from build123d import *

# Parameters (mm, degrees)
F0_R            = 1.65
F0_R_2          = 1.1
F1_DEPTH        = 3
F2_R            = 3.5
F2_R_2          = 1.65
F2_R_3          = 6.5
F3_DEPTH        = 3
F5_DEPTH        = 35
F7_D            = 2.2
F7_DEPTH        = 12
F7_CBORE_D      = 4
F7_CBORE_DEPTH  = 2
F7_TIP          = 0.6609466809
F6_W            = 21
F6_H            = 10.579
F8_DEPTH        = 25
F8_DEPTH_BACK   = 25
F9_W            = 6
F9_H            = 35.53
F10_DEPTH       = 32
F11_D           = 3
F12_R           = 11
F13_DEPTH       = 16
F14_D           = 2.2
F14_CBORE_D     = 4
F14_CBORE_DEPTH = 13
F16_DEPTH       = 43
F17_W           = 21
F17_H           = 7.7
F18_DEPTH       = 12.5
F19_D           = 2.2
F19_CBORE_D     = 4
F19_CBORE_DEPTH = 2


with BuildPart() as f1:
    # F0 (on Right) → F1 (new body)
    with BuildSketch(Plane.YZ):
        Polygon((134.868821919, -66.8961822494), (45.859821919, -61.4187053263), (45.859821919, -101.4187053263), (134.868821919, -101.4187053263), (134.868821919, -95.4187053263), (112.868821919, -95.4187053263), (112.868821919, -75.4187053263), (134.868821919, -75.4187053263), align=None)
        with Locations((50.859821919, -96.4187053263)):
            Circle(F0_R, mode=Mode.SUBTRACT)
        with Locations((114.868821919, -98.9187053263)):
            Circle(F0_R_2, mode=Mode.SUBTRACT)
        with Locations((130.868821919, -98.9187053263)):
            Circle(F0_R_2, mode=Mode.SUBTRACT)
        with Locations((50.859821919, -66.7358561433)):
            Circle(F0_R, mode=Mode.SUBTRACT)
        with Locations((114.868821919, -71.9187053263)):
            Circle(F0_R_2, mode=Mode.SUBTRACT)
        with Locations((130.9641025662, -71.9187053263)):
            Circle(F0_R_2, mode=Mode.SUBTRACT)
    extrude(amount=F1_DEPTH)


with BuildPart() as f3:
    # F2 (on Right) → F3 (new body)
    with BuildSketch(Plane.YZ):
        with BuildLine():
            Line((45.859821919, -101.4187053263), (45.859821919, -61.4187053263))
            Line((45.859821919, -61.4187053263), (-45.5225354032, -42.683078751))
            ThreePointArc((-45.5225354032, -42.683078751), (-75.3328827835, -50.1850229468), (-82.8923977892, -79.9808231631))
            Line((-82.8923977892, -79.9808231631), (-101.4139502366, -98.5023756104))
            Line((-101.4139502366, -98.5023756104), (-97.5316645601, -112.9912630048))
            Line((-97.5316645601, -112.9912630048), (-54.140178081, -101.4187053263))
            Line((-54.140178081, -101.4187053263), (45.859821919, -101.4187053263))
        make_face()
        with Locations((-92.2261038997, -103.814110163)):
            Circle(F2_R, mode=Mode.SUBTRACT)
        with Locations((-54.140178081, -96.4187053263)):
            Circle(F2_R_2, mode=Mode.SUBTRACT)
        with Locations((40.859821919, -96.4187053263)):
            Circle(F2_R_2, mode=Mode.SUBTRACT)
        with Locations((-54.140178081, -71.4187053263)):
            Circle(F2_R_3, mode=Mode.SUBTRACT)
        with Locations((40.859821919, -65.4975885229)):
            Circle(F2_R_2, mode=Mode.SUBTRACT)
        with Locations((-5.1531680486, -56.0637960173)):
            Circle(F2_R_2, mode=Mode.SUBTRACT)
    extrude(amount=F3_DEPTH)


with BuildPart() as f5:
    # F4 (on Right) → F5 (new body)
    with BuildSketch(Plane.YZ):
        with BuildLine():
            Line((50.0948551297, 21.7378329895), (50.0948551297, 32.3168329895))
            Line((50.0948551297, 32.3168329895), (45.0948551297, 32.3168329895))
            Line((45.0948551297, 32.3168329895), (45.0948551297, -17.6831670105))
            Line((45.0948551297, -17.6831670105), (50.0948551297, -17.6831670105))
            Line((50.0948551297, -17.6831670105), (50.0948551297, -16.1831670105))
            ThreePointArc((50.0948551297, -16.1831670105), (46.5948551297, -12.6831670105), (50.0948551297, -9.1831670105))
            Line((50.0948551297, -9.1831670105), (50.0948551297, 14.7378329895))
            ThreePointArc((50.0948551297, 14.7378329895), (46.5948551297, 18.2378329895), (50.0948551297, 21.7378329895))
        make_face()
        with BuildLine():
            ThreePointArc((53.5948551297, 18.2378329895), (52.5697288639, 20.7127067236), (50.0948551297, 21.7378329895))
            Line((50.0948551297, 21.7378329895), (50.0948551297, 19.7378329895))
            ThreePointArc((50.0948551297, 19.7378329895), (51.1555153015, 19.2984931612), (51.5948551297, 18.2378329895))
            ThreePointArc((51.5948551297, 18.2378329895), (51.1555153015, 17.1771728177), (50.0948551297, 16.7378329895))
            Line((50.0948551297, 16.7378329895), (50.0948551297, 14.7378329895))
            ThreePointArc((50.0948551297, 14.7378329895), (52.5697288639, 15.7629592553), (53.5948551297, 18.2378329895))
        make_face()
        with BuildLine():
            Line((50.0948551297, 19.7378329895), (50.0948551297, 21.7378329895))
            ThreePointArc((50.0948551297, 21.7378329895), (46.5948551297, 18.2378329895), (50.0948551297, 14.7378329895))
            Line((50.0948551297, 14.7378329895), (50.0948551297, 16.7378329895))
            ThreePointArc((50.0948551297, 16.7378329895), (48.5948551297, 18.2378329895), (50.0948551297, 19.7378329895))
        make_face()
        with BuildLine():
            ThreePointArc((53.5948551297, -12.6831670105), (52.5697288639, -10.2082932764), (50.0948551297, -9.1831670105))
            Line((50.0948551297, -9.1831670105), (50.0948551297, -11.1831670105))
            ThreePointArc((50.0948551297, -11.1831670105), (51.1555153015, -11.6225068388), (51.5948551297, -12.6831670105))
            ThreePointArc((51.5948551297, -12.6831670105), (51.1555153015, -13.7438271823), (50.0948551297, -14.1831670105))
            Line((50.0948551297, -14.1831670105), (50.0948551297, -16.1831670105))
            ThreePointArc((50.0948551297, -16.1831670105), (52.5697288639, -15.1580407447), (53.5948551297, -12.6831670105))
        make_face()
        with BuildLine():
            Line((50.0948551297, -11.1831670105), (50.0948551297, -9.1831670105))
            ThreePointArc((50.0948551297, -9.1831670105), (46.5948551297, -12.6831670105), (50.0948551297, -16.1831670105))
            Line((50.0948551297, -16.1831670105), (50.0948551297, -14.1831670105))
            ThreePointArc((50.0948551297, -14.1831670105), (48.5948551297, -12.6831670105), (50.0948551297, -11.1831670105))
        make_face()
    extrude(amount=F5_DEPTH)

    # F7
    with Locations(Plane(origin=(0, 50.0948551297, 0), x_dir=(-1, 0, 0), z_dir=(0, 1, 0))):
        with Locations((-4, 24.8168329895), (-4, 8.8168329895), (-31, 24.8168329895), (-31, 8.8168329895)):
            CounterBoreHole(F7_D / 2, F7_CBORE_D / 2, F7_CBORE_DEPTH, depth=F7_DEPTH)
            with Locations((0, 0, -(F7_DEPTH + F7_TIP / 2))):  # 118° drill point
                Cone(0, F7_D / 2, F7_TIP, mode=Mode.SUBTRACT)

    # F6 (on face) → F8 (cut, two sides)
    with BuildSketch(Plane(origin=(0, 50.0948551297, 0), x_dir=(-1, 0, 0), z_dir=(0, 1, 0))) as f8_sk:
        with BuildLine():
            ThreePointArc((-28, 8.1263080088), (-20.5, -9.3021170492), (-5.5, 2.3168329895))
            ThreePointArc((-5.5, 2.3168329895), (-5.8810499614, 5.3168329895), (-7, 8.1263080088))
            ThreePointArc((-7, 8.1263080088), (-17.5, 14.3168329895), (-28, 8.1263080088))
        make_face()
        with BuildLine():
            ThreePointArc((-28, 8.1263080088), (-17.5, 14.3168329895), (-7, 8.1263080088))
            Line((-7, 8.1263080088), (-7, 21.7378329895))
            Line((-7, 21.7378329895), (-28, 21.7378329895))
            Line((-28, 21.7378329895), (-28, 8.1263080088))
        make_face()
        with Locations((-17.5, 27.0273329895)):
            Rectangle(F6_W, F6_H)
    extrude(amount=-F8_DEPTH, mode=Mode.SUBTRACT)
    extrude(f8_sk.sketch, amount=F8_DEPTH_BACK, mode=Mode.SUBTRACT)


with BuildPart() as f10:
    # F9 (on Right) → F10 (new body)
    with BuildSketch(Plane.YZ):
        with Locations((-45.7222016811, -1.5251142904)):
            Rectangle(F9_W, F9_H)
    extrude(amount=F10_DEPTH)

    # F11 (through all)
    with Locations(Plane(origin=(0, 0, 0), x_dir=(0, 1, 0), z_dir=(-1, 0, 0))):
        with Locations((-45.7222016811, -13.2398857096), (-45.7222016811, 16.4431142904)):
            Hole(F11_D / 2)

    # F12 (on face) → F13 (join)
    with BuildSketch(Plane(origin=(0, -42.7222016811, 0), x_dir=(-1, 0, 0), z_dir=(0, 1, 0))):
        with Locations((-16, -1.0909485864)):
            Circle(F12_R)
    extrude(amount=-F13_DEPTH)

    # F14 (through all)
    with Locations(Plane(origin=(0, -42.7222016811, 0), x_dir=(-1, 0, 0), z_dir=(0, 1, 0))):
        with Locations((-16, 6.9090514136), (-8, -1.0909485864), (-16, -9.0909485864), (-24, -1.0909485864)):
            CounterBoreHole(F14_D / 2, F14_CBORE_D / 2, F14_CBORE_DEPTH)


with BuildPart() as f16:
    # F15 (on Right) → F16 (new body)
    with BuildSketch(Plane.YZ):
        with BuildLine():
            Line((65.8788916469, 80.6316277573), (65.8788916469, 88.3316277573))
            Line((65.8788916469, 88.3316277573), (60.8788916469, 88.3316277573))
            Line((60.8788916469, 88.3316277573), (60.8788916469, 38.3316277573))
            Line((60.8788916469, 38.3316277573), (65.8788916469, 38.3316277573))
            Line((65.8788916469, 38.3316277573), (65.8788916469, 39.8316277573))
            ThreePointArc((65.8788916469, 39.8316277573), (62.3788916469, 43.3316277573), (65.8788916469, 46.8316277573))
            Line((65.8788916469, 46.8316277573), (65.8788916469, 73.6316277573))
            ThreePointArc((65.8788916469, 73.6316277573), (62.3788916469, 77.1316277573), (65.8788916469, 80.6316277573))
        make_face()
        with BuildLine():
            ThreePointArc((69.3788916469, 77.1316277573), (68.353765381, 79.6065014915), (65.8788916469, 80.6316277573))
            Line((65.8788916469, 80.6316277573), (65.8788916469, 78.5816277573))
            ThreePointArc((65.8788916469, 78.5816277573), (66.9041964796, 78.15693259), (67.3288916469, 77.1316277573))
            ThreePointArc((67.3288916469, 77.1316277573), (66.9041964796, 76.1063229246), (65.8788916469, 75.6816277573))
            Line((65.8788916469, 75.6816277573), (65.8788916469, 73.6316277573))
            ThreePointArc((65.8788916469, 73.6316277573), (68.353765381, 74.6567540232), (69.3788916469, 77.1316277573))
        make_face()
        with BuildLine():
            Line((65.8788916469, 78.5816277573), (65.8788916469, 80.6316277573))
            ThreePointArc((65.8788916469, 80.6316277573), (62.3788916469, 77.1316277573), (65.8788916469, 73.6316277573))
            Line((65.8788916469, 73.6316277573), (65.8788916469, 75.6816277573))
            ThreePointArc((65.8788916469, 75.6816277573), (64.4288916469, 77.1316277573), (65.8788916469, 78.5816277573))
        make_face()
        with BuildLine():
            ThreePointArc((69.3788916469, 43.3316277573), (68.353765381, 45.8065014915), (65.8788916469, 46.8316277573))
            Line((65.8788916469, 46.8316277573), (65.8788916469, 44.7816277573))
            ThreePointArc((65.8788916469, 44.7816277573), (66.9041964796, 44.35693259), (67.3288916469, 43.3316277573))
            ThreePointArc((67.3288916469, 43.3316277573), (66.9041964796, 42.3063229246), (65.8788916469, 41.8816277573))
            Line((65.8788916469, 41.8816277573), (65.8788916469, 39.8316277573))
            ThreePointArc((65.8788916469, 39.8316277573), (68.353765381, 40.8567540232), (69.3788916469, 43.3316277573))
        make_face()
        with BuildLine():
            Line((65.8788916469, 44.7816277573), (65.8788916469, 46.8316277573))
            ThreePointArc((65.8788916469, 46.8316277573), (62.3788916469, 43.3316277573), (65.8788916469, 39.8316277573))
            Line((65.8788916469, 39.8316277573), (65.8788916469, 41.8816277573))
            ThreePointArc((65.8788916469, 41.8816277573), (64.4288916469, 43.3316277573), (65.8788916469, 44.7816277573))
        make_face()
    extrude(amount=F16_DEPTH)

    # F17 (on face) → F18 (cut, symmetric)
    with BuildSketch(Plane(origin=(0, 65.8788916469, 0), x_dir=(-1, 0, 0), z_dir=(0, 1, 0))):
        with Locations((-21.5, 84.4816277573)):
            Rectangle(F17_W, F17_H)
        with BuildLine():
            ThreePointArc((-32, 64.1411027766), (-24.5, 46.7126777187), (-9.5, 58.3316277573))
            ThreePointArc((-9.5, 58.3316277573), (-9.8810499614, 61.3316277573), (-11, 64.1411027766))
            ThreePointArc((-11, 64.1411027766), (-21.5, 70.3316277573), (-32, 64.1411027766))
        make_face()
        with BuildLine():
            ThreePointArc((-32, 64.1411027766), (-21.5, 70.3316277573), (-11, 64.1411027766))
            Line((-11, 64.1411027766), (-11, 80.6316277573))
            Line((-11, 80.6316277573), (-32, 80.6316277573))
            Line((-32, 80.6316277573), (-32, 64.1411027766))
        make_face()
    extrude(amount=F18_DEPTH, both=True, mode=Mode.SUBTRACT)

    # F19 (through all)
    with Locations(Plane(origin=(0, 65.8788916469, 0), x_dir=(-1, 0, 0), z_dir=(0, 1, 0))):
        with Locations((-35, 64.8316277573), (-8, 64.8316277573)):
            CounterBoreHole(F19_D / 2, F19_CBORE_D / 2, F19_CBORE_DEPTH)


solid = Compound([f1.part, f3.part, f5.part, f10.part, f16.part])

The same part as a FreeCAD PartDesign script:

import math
import FreeCAD as App
import Part
import Sketcher
from FreeCAD import Vector
Q = App.Units.Quantity

doc = App.newDocument("Part")
body = doc.addObject("PartDesign::Body", "Body")

sketch1 = body.newObject("Sketcher::SketchObject", "Sketch")
sketch1.AttachmentSupport = (doc.getObject("YZ_Plane"), [""])
sketch1.MapMode = "FlatFace"
sketch1.addGeometry([
    Part.LineSegment(Vector(134.9, -66.9, 0), Vector(45.9, -61.4, 0)),
    Part.LineSegment(Vector(45.9, -61.4, 0), Vector(45.9, -101.4, 0)),
    Part.LineSegment(Vector(45.9, -101.4, 0), Vector(134.9, -101.4, 0)),
    Part.LineSegment(Vector(134.9, -101.4, 0), Vector(134.9, -95.4, 0)),
    Part.LineSegment(Vector(134.9, -95.4, 0), Vector(112.9, -95.4, 0)),
    Part.LineSegment(Vector(112.9, -95.4, 0), Vector(112.9, -75.4, 0)),
    Part.LineSegment(Vector(112.9, -75.4, 0), Vector(134.9, -75.4, 0)),
    Part.LineSegment(Vector(134.9, -75.4, 0), Vector(134.9, -66.9, 0)),
    Part.Circle(Vector(50.9, -96.4, 0), Vector(0, 0, 1), 1.6),
    Part.Circle(Vector(114.9, -98.9, 0), Vector(0, 0, 1), 1.1),
    Part.Circle(Vector(130.9, -98.9, 0), Vector(0, 0, 1), 1.1),
    Part.Circle(Vector(50.9, -66.7, 0), Vector(0, 0, 1), 1.6),
    Part.Circle(Vector(114.9, -71.9, 0), Vector(0, 0, 1), 1.1),
    Part.Circle(Vector(131, -71.9, 0), Vector(0, 0, 1), 1.1),
], False)
sketch1.addConstraint([
    Sketcher.Constraint("Coincident", 0, 2, 1, 1),
    Sketcher.Constraint("Coincident", 1, 2, 2, 1),
    Sketcher.Constraint("Coincident", 2, 2, 3, 1),
    Sketcher.Constraint("Coincident", 3, 2, 4, 1),
    Sketcher.Constraint("Coincident", 4, 2, 5, 1),
    Sketcher.Constraint("Coincident", 5, 2, 6, 1),
    Sketcher.Constraint("Coincident", 6, 2, 7, 1),
    Sketcher.Constraint("Coincident", 7, 2, 0, 1),
    Sketcher.Constraint("Vertical", 1),
    Sketcher.Constraint("Horizontal", 2),
    Sketcher.Constraint("Vertical", 3),
    Sketcher.Constraint("Horizontal", 4),
    Sketcher.Constraint("Vertical", 5),
    Sketcher.Constraint("Horizontal", 6),
    Sketcher.Constraint("Vertical", 7),
    Sketcher.Constraint("Equal", 9, 10),
    Sketcher.Constraint("Equal", 8, 11),
    Sketcher.Constraint("Equal", 10, 12),
    Sketcher.Constraint("Equal", 12, 13),
    Sketcher.Constraint("Horizontal", 9, 3, 10, 3),
    Sketcher.Constraint("Horizontal", 12, 3, 13, 3),
    Sketcher.Constraint("Vertical", 8, 3, 11, 3),
    Sketcher.Constraint("Vertical", 9, 3, 12, 3),
    Sketcher.Constraint("Vertical", 3, 2, 6, 2),
    Sketcher.Constraint("Diameter", 8, 3.3),
    Sketcher.Constraint("Diameter", 9, 2.2),
    Sketcher.Constraint("DistanceX", 4, 2, 4, 1, 22.0),
    Sketcher.Constraint("DistanceY", 1, 2, 1, 1, 40.0),
    Sketcher.Constraint("DistanceY", 3, 1, 3, 2, 6.0),
    Sketcher.Constraint("DistanceY", 5, 1, 5, 2, 20.0),
    Sketcher.Constraint("DistanceX", 9, 3, 10, 3, 16.0),
    Sketcher.Constraint("DistanceY", 9, 3, 12, 3, 27.0),
    Sketcher.Constraint("DistanceX", 0, 2, 11, 3, 5.0),
    Sketcher.Constraint("DistanceY", 8, 3, 0, 2, 35.0),
    Sketcher.Constraint("DistanceX", 10, 3, 2, 2, 4.0),
    Sketcher.Constraint("DistanceY", 9, 3, 8, 3, 2.5),
    Sketcher.Constraint("DistanceX", 2, 1, 2, 2, 89.009),
    Sketcher.Constraint("Distance", 0, 89.177378),
    Sketcher.Constraint("DistanceX", -1, 1, 8, 3, 50.859822),
    Sketcher.Constraint("DistanceY", 8, 3, 11, 3, 29.682849),
    Sketcher.Constraint("DistanceX", 12, 3, 13, 3, 16.095281),
    Sketcher.Constraint("DistanceY", 8, 3, -1, 1, 96.418705),
])
pad1 = body.newObject("PartDesign::Pad", "Pad")
pad1.Profile = sketch1
pad1.Length = 3
body2 = doc.addObject("PartDesign::Body", "Body001")

sketch2 = body2.newObject("Sketcher::SketchObject", "Sketch001")
sketch2.AttachmentSupport = (doc.getObject("YZ_Plane001"), [""])
sketch2.MapMode = "FlatFace"
sketch2.addGeometry([
    Part.LineSegment(Vector(45.9, -101.4, 0), Vector(45.9, -61.4, 0)),
    Part.LineSegment(Vector(45.9, -61.4, 0), Vector(-45.5, -42.7, 0)),
    Part.ArcOfCircle(Part.Circle(Vector(-54.1, -71.4, 0), Vector(0, 0, 1), 30), math.radians(73), math.radians(197)),
    Part.LineSegment(Vector(-82.9, -80, 0), Vector(-101.4, -98.5, 0)),
    Part.LineSegment(Vector(-101.4, -98.5, 0), Vector(-97.5, -113, 0)),
    Part.LineSegment(Vector(-97.5, -113, 0), Vector(-54.1, -101.4, 0)),
    Part.LineSegment(Vector(-54.1, -101.4, 0), Vector(45.9, -101.4, 0)),
    Part.Circle(Vector(-92.2, -103.8, 0), Vector(0, 0, 1), 3.5),
    Part.Circle(Vector(-54.1, -96.4, 0), Vector(0, 0, 1), 1.6),
    Part.Circle(Vector(40.9, -96.4, 0), Vector(0, 0, 1), 1.6),
    Part.Circle(Vector(-54.1, -71.4, 0), Vector(0, 0, 1), 6.5),
    Part.Circle(Vector(-5.2, -56.1, 0), Vector(0, 0, 1), 1.6),
    Part.Circle(Vector(40.9, -65.5, 0), Vector(0, 0, 1), 1.6),
], False)
sketch2.addConstraint([
    Sketcher.Constraint("Coincident", 0, 2, 1, 1),
    Sketcher.Constraint("Coincident", 1, 2, 2, 1),
    Sketcher.Constraint("Coincident", 2, 2, 3, 1),
    Sketcher.Constraint("Coincident", 3, 2, 4, 1),
    Sketcher.Constraint("Coincident", 4, 2, 5, 1),
    Sketcher.Constraint("Coincident", 5, 2, 6, 1),
    Sketcher.Constraint("Coincident", 6, 2, 0, 1),
    Sketcher.Constraint("Vertical", 0),
    Sketcher.Constraint("Horizontal", 6),
    Sketcher.Constraint("Coincident", 10, 3, 2, 3),
    Sketcher.Constraint("Equal", 8, 9),
    Sketcher.Constraint("Equal", 9, 11),
    Sketcher.Constraint("Equal", 11, 12),
    Sketcher.Constraint("Horizontal", 8, 3, 9, 3),
    Sketcher.Constraint("Vertical", 2, 3, 8, 3),
    Sketcher.Constraint("Vertical", 9, 3, 12, 3),
    Sketcher.Constraint("Vertical", 10, 3, 5, 2),
    Sketcher.Constraint("Diameter", 7, 7.0),
    Sketcher.Constraint("Diameter", 10, 13.0),
    Sketcher.Constraint("Radius", 2, 30.0),
    Sketcher.Constraint("Diameter", 8, 3.3),
    Sketcher.Constraint("DistanceX", 6, 1, 6, 2, 100.0),
    Sketcher.Constraint("DistanceY", 0, 1, 0, 2, 40.0),
    Sketcher.Constraint("Angle", 3, Q("-135 deg")),
    Sketcher.Constraint("Angle", 4, Q("-75 deg")),
    Sketcher.Constraint("Distance", 4, 15.0),
    Sketcher.Constraint("DistanceY", 8, 3, 2, 3, 25.0),
    Sketcher.Constraint("DistanceX", 8, 3, 9, 3, 95.0),
    Sketcher.Constraint("DistanceY", 9, 3, 0, 2, 35.0),
    Sketcher.Constraint("Distance", 1, 93.283219),
    Sketcher.Constraint("Distance", 3, 26.193431),
    Sketcher.Constraint("DistanceX", 2, 3, -1, 1, 54.140178),
    Sketcher.Constraint("DistanceY", 7, 3, -1, 1, 103.81411),
    Sketcher.Constraint("DistanceX", 11, 3, -1, 1, 5.153168),
    Sketcher.Constraint("DistanceY", 12, 3, -1, 1, 65.497589),
    Sketcher.Constraint("DistanceY", 1, 2, -1, 1, 42.683079),
    Sketcher.Constraint("DistanceX", 3, 2, -1, 1, 101.41395),
    Sketcher.Constraint("DistanceY", 2, 3, 11, 3, 15.354909),
    Sketcher.Constraint("DistanceX", 7, 3, 1, 2, 46.703568),
])
pad2 = body2.newObject("PartDesign::Pad", "Pad001")
pad2.Profile = sketch2
pad2.Length = 3
body3 = doc.addObject("PartDesign::Body", "Body002")

sketch3 = body3.newObject("Sketcher::SketchObject", "Sketch002")
sketch3.AttachmentSupport = (doc.getObject("YZ_Plane002"), [""])
sketch3.MapMode = "FlatFace"
sketch3.addGeometry([
    Part.LineSegment(Vector(50.1, 21.7, 0), Vector(50.1, 32.3, 0)),
    Part.LineSegment(Vector(50.1, 32.3, 0), Vector(45.1, 32.3, 0)),
    Part.LineSegment(Vector(45.1, 32.3, 0), Vector(45.1, -17.7, 0)),
    Part.LineSegment(Vector(45.1, -17.7, 0), Vector(50.1, -17.7, 0)),
    Part.LineSegment(Vector(50.1, -17.7, 0), Vector(50.1, -16.2, 0)),
    Part.ArcOfCircle(Part.Circle(Vector(50.1, -12.7, 0), Vector(0, 0, 1), 3.5), math.radians(-90), math.radians(0)),
    Part.ArcOfCircle(Part.Circle(Vector(50.1, -12.7, 0), Vector(0, 0, 1), 3.5), math.radians(0), math.radians(90)),
    Part.LineSegment(Vector(50.1, -9.2, 0), Vector(50.1, 14.7, 0)),
    Part.ArcOfCircle(Part.Circle(Vector(50.1, 18.2, 0), Vector(0, 0, 1), 3.5), math.radians(-90), math.radians(0)),
    Part.ArcOfCircle(Part.Circle(Vector(50.1, 18.2, 0), Vector(0, 0, 1), 3.5), math.radians(0), math.radians(90)),
    Part.ArcOfCircle(Part.Circle(Vector(50.1, 18.2, 0), Vector(0, 0, 1), 1.5), math.radians(90), math.radians(270)),
    Part.ArcOfCircle(Part.Circle(Vector(50.1, 18.2, 0), Vector(0, 0, 1), 1.5), math.radians(0), math.radians(90)),
    Part.ArcOfCircle(Part.Circle(Vector(50.1, 18.2, 0), Vector(0, 0, 1), 1.5), math.radians(-90), math.radians(0)),
    Part.ArcOfCircle(Part.Circle(Vector(50.1, -12.7, 0), Vector(0, 0, 1), 1.5), math.radians(90), math.radians(270)),
    Part.ArcOfCircle(Part.Circle(Vector(50.1, -12.7, 0), Vector(0, 0, 1), 1.5), math.radians(0), math.radians(90)),
    Part.ArcOfCircle(Part.Circle(Vector(50.1, -12.7, 0), Vector(0, 0, 1), 1.5), math.radians(-90), math.radians(0)),
], False)
sketch3.addConstraint([
    Sketcher.Constraint("Coincident", 0, 2, 1, 1),
    Sketcher.Constraint("Coincident", 1, 2, 2, 1),
    Sketcher.Constraint("Coincident", 2, 2, 3, 1),
    Sketcher.Constraint("Coincident", 3, 2, 4, 1),
    Sketcher.Constraint("Coincident", 4, 2, 5, 1),
    Sketcher.Constraint("Tangent", 5, 2, 6, 1),
    Sketcher.Constraint("Coincident", 6, 2, 7, 1),
    Sketcher.Constraint("Coincident", 7, 2, 8, 1),
    Sketcher.Constraint("Tangent", 8, 2, 9, 1),
    Sketcher.Constraint("Coincident", 9, 2, 0, 1),
    Sketcher.Constraint("Tangent", 10, 1, 11, 2),
    Sketcher.Constraint("Tangent", 11, 1, 12, 2),
    Sketcher.Constraint("Tangent", 12, 1, 10, 2),
    Sketcher.Constraint("Tangent", 13, 1, 14, 2),
    Sketcher.Constraint("Tangent", 14, 1, 15, 2),
    Sketcher.Constraint("Tangent", 15, 1, 13, 2),
    Sketcher.Constraint("Vertical", 0),
    Sketcher.Constraint("Horizontal", 1),
    Sketcher.Constraint("Vertical", 2),
    Sketcher.Constraint("Horizontal", 3),
    Sketcher.Constraint("Vertical", 4),
    Sketcher.Constraint("Vertical", 7),
    Sketcher.Constraint("Coincident", 10, 3, 8, 3),
    Sketcher.Constraint("Coincident", 13, 3, 5, 3),
    Sketcher.Constraint("Equal", 5, 6),
    Sketcher.Constraint("Equal", 6, 8),
    Sketcher.Constraint("Equal", 8, 9),
    Sketcher.Constraint("Equal", 12, 13),
    Sketcher.Constraint("Horizontal", 15, 3, 5, 2),
    Sketcher.Constraint("Horizontal", 12, 3, 8, 2),
    Sketcher.Constraint("Horizontal", 8, 2, 11, 1),
    Sketcher.Constraint("Horizontal", 5, 2, 14, 1),
    Sketcher.Constraint("Vertical", 6, 3, 8, 3),
    Sketcher.Constraint("Vertical", 15, 3, 0, 2),
    Sketcher.Constraint("Vertical", 0, 2, 3, 2),
    Sketcher.Constraint("Vertical", 4, 2, 6, 2),
    Sketcher.Constraint("Vertical", 9, 2, 10, 1),
    Sketcher.Constraint("Vertical", 10, 1, 12, 1),
    Sketcher.Constraint("Vertical", 12, 1, 13, 1),
    Sketcher.Constraint("Vertical", 13, 1, 15, 1),
    Sketcher.Constraint("Radius", 5, 3.5),
    Sketcher.Constraint("Radius", 10, 1.5),
    Sketcher.Constraint("DistanceX", 1, 2, 1, 1, 5.0),
    Sketcher.Constraint("DistanceY", 2, 2, 2, 1, 50.0),
    Sketcher.Constraint("DistanceY", 4, 1, 4, 2, 1.5),
    Sketcher.Constraint("DistanceY", 0, 1, 0, 2, 10.579),
    Sketcher.Constraint("DistanceX", -1, 1, 5, 3, 50.094855),
    Sketcher.Constraint("DistanceY", 5, 3, -1, 1, 12.683167),
])
pad3 = body3.newObject("PartDesign::Pad", "Pad002")
pad3.Profile = sketch3
pad3.Length = 35

sketch4 = body3.newObject("Sketcher::SketchObject", "Sketch003")
sketch4.AttachmentSupport = (doc.getObject("XZ_Plane002"), [""])
sketch4.MapMode = "FlatFace"
sketch4.AttachmentOffset = App.Placement(Vector(0, 0, -50.094855), App.Rotation())
sketch4.addGeometry([
    Part.Circle(Vector(4, 24.8, 0), Vector(0, 0, 1), 1.1),
    Part.Circle(Vector(4, 8.8, 0), Vector(0, 0, 1), 1.1),
    Part.Circle(Vector(31, 24.8, 0), Vector(0, 0, 1), 1.1),
    Part.Circle(Vector(31, 8.8, 0), Vector(0, 0, 1), 1.1),
], False)
sketch4.addConstraint([
    Sketcher.Constraint("Equal", 0, 1),
    Sketcher.Constraint("Equal", 1, 2),
    Sketcher.Constraint("Equal", 2, 3),
    Sketcher.Constraint("Horizontal", 0, 3, 2, 3),
    Sketcher.Constraint("Horizontal", 1, 3, 3, 3),
    Sketcher.Constraint("Vertical", 0, 3, 1, 3),
    Sketcher.Constraint("Vertical", 2, 3, 3, 3),
    Sketcher.Constraint("Diameter", 0, 2.2),
    Sketcher.Constraint("DistanceX", -1, 1, 0, 3, 4.0),
    Sketcher.Constraint("DistanceX", -1, 1, 2, 3, 31.0),
    Sketcher.Constraint("DistanceY", 1, 3, 0, 3, 16.0),
    Sketcher.Constraint("DistanceY", -1, 1, 0, 3, 24.816833),
])
doc.recompute()
hole = body3.newObject("PartDesign::Hole", "Hole")
hole.Profile = sketch4
hole.ThreadType = "None"
hole.Diameter = 2.2
hole.DepthType = "Dimension"
hole.Depth = 12
hole.DrillPoint = "Angled"
hole.DrillPointAngle = 118
hole.HoleCutType = "Counterbore"
hole.HoleCutDiameter = 4
hole.HoleCutDepth = 2
hole.Reversed = True

sketch5 = body3.newObject("Sketcher::SketchObject", "Sketch004")
sketch5.AttachmentSupport = (doc.getObject("XZ_Plane002"), [""])
sketch5.MapMode = "FlatFace"
sketch5.AttachmentOffset = App.Placement(Vector(0, 0, -50.094855), App.Rotation())
sketch5.addGeometry([
    Part.ArcOfCircle(Part.Circle(Vector(18, 2, 0), Vector(0, 0, 1), 12), math.radians(180), math.radians(389)),
    Part.ArcOfCircle(Part.Circle(Vector(18, 2, 0), Vector(0, 0, 1), 12), math.radians(151), math.radians(180)),
    Part.LineSegment(Vector(7, 8, 0), Vector(7, 32, 0)),
    Part.LineSegment(Vector(7, 32, 0), Vector(28, 32, 0)),
    Part.LineSegment(Vector(28, 32, 0), Vector(28, 8, 0)),
], False)
sketch5.addConstraint([
    Sketcher.Constraint("Tangent", 0, 1, 1, 2),
    Sketcher.Constraint("Coincident", 1, 1, 2, 1),
    Sketcher.Constraint("Coincident", 2, 2, 3, 1),
    Sketcher.Constraint("Coincident", 3, 2, 4, 1),
    Sketcher.Constraint("Coincident", 4, 2, 0, 2),
    Sketcher.Constraint("Vertical", 2),
    Sketcher.Constraint("Horizontal", 3),
    Sketcher.Constraint("Vertical", 4),
    Sketcher.Constraint("Equal", 0, 1),
    Sketcher.Constraint("Horizontal", 1, 3, 0, 1),
    Sketcher.Constraint("Horizontal", 1, 1, 4, 2),
    Sketcher.Constraint("Radius", 0, 12.0),
    Sketcher.Constraint("DistanceX", 3, 1, 3, 2, 21.0),
    Sketcher.Constraint("DistanceX", -1, 1, 1, 1, 7.0),
    Sketcher.Constraint("DistanceY", 0, 1, 2, 2, 30.0),
    Sketcher.Constraint("DistanceY", -1, 1, 1, 1, 8.126308),
])
pocket1 = body3.newObject("PartDesign::Pocket", "Pocket")
pocket1.Profile = sketch5
pocket1.Type = "ThroughAll"
pocket1.Midplane = True
body4 = doc.addObject("PartDesign::Body", "Body003")

sketch6 = body4.newObject("Sketcher::SketchObject", "Sketch005")
sketch6.AttachmentSupport = (doc.getObject("YZ_Plane003"), [""])
sketch6.MapMode = "FlatFace"
sketch6.addGeometry([
    Part.LineSegment(Vector(-49, 16, 0), Vector(-49, -19, 0)),
    Part.LineSegment(Vector(-49, -19, 0), Vector(-43, -19, 0)),
    Part.LineSegment(Vector(-43, -19, 0), Vector(-43, 16, 0)),
    Part.LineSegment(Vector(-43, 16, 0), Vector(-49, 16, 0)),
], False)
sketch6.addConstraint([
    Sketcher.Constraint("Coincident", 0, 2, 1, 1),
    Sketcher.Constraint("Coincident", 1, 2, 2, 1),
    Sketcher.Constraint("Coincident", 2, 2, 3, 1),
    Sketcher.Constraint("Coincident", 3, 2, 0, 1),
    Sketcher.Constraint("Vertical", 0),
    Sketcher.Constraint("Horizontal", 1),
    Sketcher.Constraint("Vertical", 2),
    Sketcher.Constraint("Horizontal", 3),
    Sketcher.Constraint("DistanceX", 1, 1, 1, 2, 6.0),
    Sketcher.Constraint("DistanceY", 0, 2, 0, 1, 35.53),
    Sketcher.Constraint("DistanceX", 0, 2, -1, 1, 48.722202),
    Sketcher.Constraint("DistanceY", 0, 2, -1, 1, 19.290114),
])
pad4 = body4.newObject("PartDesign::Pad", "Pad003")
pad4.Profile = sketch6
pad4.Length = 32

sketch7 = body4.newObject("Sketcher::SketchObject", "Sketch006")
sketch7.AttachmentSupport = (doc.getObject("YZ_Plane003"), [""])
sketch7.MapMode = "FlatFace"
sketch7.addGeometry([
    Part.Circle(Vector(-45.7, 13.2, 0), Vector(0, 0, 1), 1.5),
    Part.Circle(Vector(-45.7, -16.4, 0), Vector(0, 0, 1), 1.5),
], False)
sketch7.addConstraint([
    Sketcher.Constraint("Equal", 0, 1),
    Sketcher.Constraint("Vertical", 0, 3, 1, 3),
    Sketcher.Constraint("Diameter", 0, 3.0),
    Sketcher.Constraint("DistanceY", 1, 3, 0, 3, 29.683),
    Sketcher.Constraint("DistanceX", 0, 3, -1, 1, 45.722202),
    Sketcher.Constraint("DistanceY", -1, 1, 0, 3, 13.239886),
])
doc.recompute()
hole2 = body4.newObject("PartDesign::Hole", "Hole001")
hole2.Profile = sketch7
hole2.ThreadType = "None"
hole2.Diameter = 3
hole2.DepthType = "ThroughAll"
hole2.Reversed = True

sketch8 = body4.newObject("Sketcher::SketchObject", "Sketch007")
sketch8.AttachmentSupport = (doc.getObject("XZ_Plane003"), [""])
sketch8.MapMode = "FlatFace"
sketch8.AttachmentOffset = App.Placement(Vector(0, 0, 42.722202), App.Rotation())
sketch8.addGeometry(Part.Circle(Vector(16, -1, 0), Vector(0, 0, 1), 11), False)
sketch8.addConstraint([
    Sketcher.Constraint("Diameter", 0, 22.0),
    Sketcher.Constraint("DistanceX", -1, 1, 0, 3, 16.0),
    Sketcher.Constraint("DistanceY", 0, 3, -1, 1, 1.090949),
])
pad5 = body4.newObject("PartDesign::Pad", "Pad004")
pad5.Profile = sketch8
pad5.Length = 16

sketch9 = body4.newObject("Sketcher::SketchObject", "Sketch008")
sketch9.AttachmentSupport = (doc.getObject("XZ_Plane003"), [""])
sketch9.MapMode = "FlatFace"
sketch9.AttachmentOffset = App.Placement(Vector(0, 0, 42.722202), App.Rotation())
sketch9.addGeometry([
    Part.Circle(Vector(16, 6.9, 0), Vector(0, 0, 1), 1.1),
    Part.Circle(Vector(8, -1.1, 0), Vector(0, 0, 1), 1.1),
    Part.Circle(Vector(16, -9.1, 0), Vector(0, 0, 1), 1.1),
    Part.Circle(Vector(24, -1.1, 0), Vector(0, 0, 1), 1.1),
], False)
sketch9.addConstraint([
    Sketcher.Constraint("Equal", 0, 1),
    Sketcher.Constraint("Equal", 1, 2),
    Sketcher.Constraint("Equal", 2, 3),
    Sketcher.Constraint("Horizontal", 1, 3, 3, 3),
    Sketcher.Constraint("Vertical", 0, 3, 2, 3),
    Sketcher.Constraint("Diameter", 0, 2.2),
    Sketcher.Constraint("DistanceX", -1, 1, 0, 3, 16.0),
    Sketcher.Constraint("DistanceX", -1, 1, 1, 3, 8.0),
    Sketcher.Constraint("DistanceX", -1, 1, 3, 3, 24.0),
    Sketcher.Constraint("DistanceY", 1, 3, 0, 3, 8.0),
    Sketcher.Constraint("DistanceY", 2, 3, 1, 3, 8.0),
    Sketcher.Constraint("DistanceY", -1, 1, 0, 3, 6.909051),
])
doc.recompute()
hole3 = body4.newObject("PartDesign::Hole", "Hole002")
hole3.Profile = sketch9
hole3.ThreadType = "None"
hole3.Diameter = 2.2
hole3.DepthType = "ThroughAll"
hole3.HoleCutType = "Counterbore"
hole3.HoleCutDiameter = 4
hole3.HoleCutDepth = 13
hole3.Reversed = True
body5 = doc.addObject("PartDesign::Body", "Body004")

sketch10 = body5.newObject("Sketcher::SketchObject", "Sketch009")
sketch10.AttachmentSupport = (doc.getObject("YZ_Plane004"), [""])
sketch10.MapMode = "FlatFace"
sketch10.addGeometry([
    Part.LineSegment(Vector(65.9, 80.6, 0), Vector(65.9, 88.3, 0)),
    Part.LineSegment(Vector(65.9, 88.3, 0), Vector(60.9, 88.3, 0)),
    Part.LineSegment(Vector(60.9, 88.3, 0), Vector(60.9, 38.3, 0)),
    Part.LineSegment(Vector(60.9, 38.3, 0), Vector(65.9, 38.3, 0)),
    Part.LineSegment(Vector(65.9, 38.3, 0), Vector(65.9, 39.8, 0)),
    Part.ArcOfCircle(Part.Circle(Vector(65.9, 43.3, 0), Vector(0, 0, 1), 3.5), math.radians(-90), math.radians(0)),
    Part.ArcOfCircle(Part.Circle(Vector(65.9, 43.3, 0), Vector(0, 0, 1), 3.5), math.radians(0), math.radians(90)),
    Part.LineSegment(Vector(65.9, 46.8, 0), Vector(65.9, 73.6, 0)),
    Part.ArcOfCircle(Part.Circle(Vector(65.9, 77.1, 0), Vector(0, 0, 1), 3.5), math.radians(-90), math.radians(0)),
    Part.ArcOfCircle(Part.Circle(Vector(65.9, 77.1, 0), Vector(0, 0, 1), 3.5), math.radians(0), math.radians(90)),
    Part.ArcOfCircle(Part.Circle(Vector(65.9, 77.1, 0), Vector(0, 0, 1), 1.4), math.radians(90), math.radians(270)),
    Part.ArcOfCircle(Part.Circle(Vector(65.9, 77.1, 0), Vector(0, 0, 1), 1.4), math.radians(0), math.radians(90)),
    Part.ArcOfCircle(Part.Circle(Vector(65.9, 77.1, 0), Vector(0, 0, 1), 1.4), math.radians(-90), math.radians(0)),
    Part.ArcOfCircle(Part.Circle(Vector(65.9, 43.3, 0), Vector(0, 0, 1), 1.4), math.radians(90), math.radians(270)),
    Part.ArcOfCircle(Part.Circle(Vector(65.9, 43.3, 0), Vector(0, 0, 1), 1.4), math.radians(0), math.radians(90)),
    Part.ArcOfCircle(Part.Circle(Vector(65.9, 43.3, 0), Vector(0, 0, 1), 1.4), math.radians(-90), math.radians(0)),
], False)
sketch10.addConstraint([
    Sketcher.Constraint("Coincident", 0, 2, 1, 1),
    Sketcher.Constraint("Coincident", 1, 2, 2, 1),
    Sketcher.Constraint("Coincident", 2, 2, 3, 1),
    Sketcher.Constraint("Coincident", 3, 2, 4, 1),
    Sketcher.Constraint("Coincident", 4, 2, 5, 1),
    Sketcher.Constraint("Tangent", 5, 2, 6, 1),
    Sketcher.Constraint("Coincident", 6, 2, 7, 1),
    Sketcher.Constraint("Coincident", 7, 2, 8, 1),
    Sketcher.Constraint("Tangent", 8, 2, 9, 1),
    Sketcher.Constraint("Coincident", 9, 2, 0, 1),
    Sketcher.Constraint("Tangent", 10, 1, 11, 2),
    Sketcher.Constraint("Tangent", 11, 1, 12, 2),
    Sketcher.Constraint("Tangent", 12, 1, 10, 2),
    Sketcher.Constraint("Tangent", 13, 1, 14, 2),
    Sketcher.Constraint("Tangent", 14, 1, 15, 2),
    Sketcher.Constraint("Tangent", 15, 1, 13, 2),
    Sketcher.Constraint("Vertical", 0),
    Sketcher.Constraint("Horizontal", 1),
    Sketcher.Constraint("Vertical", 2),
    Sketcher.Constraint("Horizontal", 3),
    Sketcher.Constraint("Vertical", 4),
    Sketcher.Constraint("Vertical", 7),
    Sketcher.Constraint("Coincident", 10, 3, 8, 3),
    Sketcher.Constraint("Coincident", 13, 3, 5, 3),
    Sketcher.Constraint("Equal", 5, 6),
    Sketcher.Constraint("Equal", 6, 8),
    Sketcher.Constraint("Equal", 8, 9),
    Sketcher.Constraint("Equal", 12, 13),
    Sketcher.Constraint("Horizontal", 15, 3, 5, 2),
    Sketcher.Constraint("Horizontal", 12, 3, 8, 2),
    Sketcher.Constraint("Horizontal", 8, 2, 11, 1),
    Sketcher.Constraint("Horizontal", 5, 2, 14, 1),
    Sketcher.Constraint("Vertical", 6, 3, 8, 3),
    Sketcher.Constraint("Vertical", 15, 3, 0, 2),
    Sketcher.Constraint("Vertical", 0, 2, 3, 2),
    Sketcher.Constraint("Vertical", 4, 2, 6, 2),
    Sketcher.Constraint("Vertical", 9, 2, 10, 1),
    Sketcher.Constraint("Vertical", 10, 1, 12, 1),
    Sketcher.Constraint("Vertical", 12, 1, 13, 1),
    Sketcher.Constraint("Vertical", 13, 1, 15, 1),
    Sketcher.Constraint("Radius", 5, 3.5),
    Sketcher.Constraint("DistanceX", 1, 2, 1, 1, 5.0),
    Sketcher.Constraint("DistanceY", 2, 2, 2, 1, 50.0),
    Sketcher.Constraint("Radius", 10, 1.45),
    Sketcher.Constraint("DistanceY", 0, 1, 0, 2, 7.7),
    Sketcher.Constraint("DistanceY", 4, 1, 4, 2, 1.5),
    Sketcher.Constraint("DistanceX", -1, 1, 5, 3, 65.878892),
    Sketcher.Constraint("DistanceY", -1, 1, 5, 3, 43.331628),
])
pad6 = body5.newObject("PartDesign::Pad", "Pad005")
pad6.Profile = sketch10
pad6.Length = 43

sketch11 = body5.newObject("Sketcher::SketchObject", "Sketch010")
sketch11.AttachmentSupport = (doc.getObject("XZ_Plane004"), [""])
sketch11.MapMode = "FlatFace"
sketch11.AttachmentOffset = App.Placement(Vector(0, 0, -65.878892), App.Rotation())
sketch11.addGeometry([
    Part.LineSegment(Vector(32, 88, 0), Vector(32, 64, 0)),
    Part.ArcOfCircle(Part.Circle(Vector(22, 58, 0), Vector(0, 0, 1), 12), math.radians(180), math.radians(389)),
    Part.ArcOfCircle(Part.Circle(Vector(22, 58, 0), Vector(0, 0, 1), 12), math.radians(151), math.radians(180)),
    Part.LineSegment(Vector(11, 64, 0), Vector(11, 88, 0)),
    Part.LineSegment(Vector(11, 88, 0), Vector(32, 88, 0)),
], False)
sketch11.addConstraint([
    Sketcher.Constraint("Coincident", 0, 2, 1, 2),
    Sketcher.Constraint("Tangent", 1, 1, 2, 2),
    Sketcher.Constraint("Coincident", 2, 1, 3, 1),
    Sketcher.Constraint("Coincident", 3, 2, 4, 1),
    Sketcher.Constraint("Coincident", 4, 2, 0, 1),
    Sketcher.Constraint("Vertical", 0),
    Sketcher.Constraint("Vertical", 3),
    Sketcher.Constraint("Horizontal", 4),
    Sketcher.Constraint("Equal", 1, 2),
    Sketcher.Constraint("Horizontal", 2, 3, 1, 1),
    Sketcher.Constraint("Horizontal", 0, 2, 2, 1),
    Sketcher.Constraint("Radius", 1, 12.0),
    Sketcher.Constraint("DistanceX", 4, 1, 4, 2, 21.0),
    Sketcher.Constraint("DistanceX", -1, 1, 0, 2, 32.0),
    Sketcher.Constraint("DistanceY", 1, 1, 3, 2, 30.0),
    Sketcher.Constraint("DistanceY", -1, 1, 1, 3, 58.331628),
])
pocket2 = body5.newObject("PartDesign::Pocket", "Pocket001")
pocket2.Profile = sketch11
pocket2.Length = 25
pocket2.Midplane = True

sketch12 = body5.newObject("Sketcher::SketchObject", "Sketch011")
sketch12.AttachmentSupport = (doc.getObject("XZ_Plane004"), [""])
sketch12.MapMode = "FlatFace"
sketch12.AttachmentOffset = App.Placement(Vector(0, 0, -65.878892), App.Rotation())
sketch12.addGeometry([
    Part.Circle(Vector(35, 64.8, 0), Vector(0, 0, 1), 1.1),
    Part.Circle(Vector(8, 64.8, 0), Vector(0, 0, 1), 1.1),
], False)
sketch12.addConstraint([
    Sketcher.Constraint("Equal", 0, 1),
    Sketcher.Constraint("Horizontal", 0, 3, 1, 3),
    Sketcher.Constraint("Diameter", 0, 2.2),
    Sketcher.Constraint("DistanceX", -1, 1, 0, 3, 35.0),
    Sketcher.Constraint("DistanceX", -1, 1, 1, 3, 8.0),
    Sketcher.Constraint("DistanceY", -1, 1, 0, 3, 64.831628),
])
doc.recompute()
hole4 = body5.newObject("PartDesign::Hole", "Hole003")
hole4.Profile = sketch12
hole4.ThreadType = "None"
hole4.Diameter = 2.2
hole4.DepthType = "ThroughAll"
hole4.HoleCutType = "Counterbore"
hole4.HoleCutDiameter = 4
hole4.HoleCutDepth = 2
hole4.Reversed = True

doc.recompute()
